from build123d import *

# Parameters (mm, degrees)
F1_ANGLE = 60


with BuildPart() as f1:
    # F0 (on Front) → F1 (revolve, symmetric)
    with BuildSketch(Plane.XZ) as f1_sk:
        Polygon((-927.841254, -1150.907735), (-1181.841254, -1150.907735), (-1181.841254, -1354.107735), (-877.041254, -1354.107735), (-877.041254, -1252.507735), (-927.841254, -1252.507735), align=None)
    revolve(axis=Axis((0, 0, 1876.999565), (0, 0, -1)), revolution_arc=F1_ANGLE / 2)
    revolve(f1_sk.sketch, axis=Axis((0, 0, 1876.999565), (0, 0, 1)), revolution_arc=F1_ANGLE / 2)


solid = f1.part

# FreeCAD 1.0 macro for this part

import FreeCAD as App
import Part
import Sketcher
from FreeCAD import Vector
Q = App.Units.Quantity


def add_polygon(sketch, points):
    """Adds a closed chain of lines whose ends are joined by coincident constraints."""
    first, n = sketch.GeometryCount, len(points)
    for a, b in zip(points, points[1:] + points[:1]):
        sketch.addGeometry(Part.LineSegment(App.Vector(*a, 0), App.Vector(*b, 0)), False)
    for i in range(n):
        sketch.addConstraint(Sketcher.Constraint("Coincident", first + i, 2, first + (i + 1) % n, 1))

doc = App.newDocument("Part")
body = doc.addObject("PartDesign::Body", "Body")

# Sketch on XZ plane
sketch1 = body.newObject("Sketcher::SketchObject", "Sketch")
sketch1.AttachmentSupport = (doc.getObject("XZ_Plane"), [""])
sketch1.MapMode = "FlatFace"
add_polygon(sketch1, [(-928, -1151), (-1182, -1151), (-1182, -1354), (-877, -1354), (-877, -1253), (-928, -1253)])  # lines 0-5
sketch1.addConstraint(Sketcher.Constraint("Horizontal", 0))
sketch1.addConstraint(Sketcher.Constraint("Vertical", 1))
sketch1.addConstraint(Sketcher.Constraint("Horizontal", 2))
sketch1.addConstraint(Sketcher.Constraint("Vertical", 3))
sketch1.addConstraint(Sketcher.Constraint("Horizontal", 4))
sketch1.addConstraint(Sketcher.Constraint("Vertical", 5))
sketch1.addConstraint(Sketcher.Constraint("Equal", 3, 5))
sketch1.addConstraint(Sketcher.Constraint("DistanceX", 0, 2, 0, 1, Q("10 in")))
sketch1.addConstraint(Sketcher.Constraint("DistanceX", 2, 1, 2, 2, Q("12 in")))
sketch1.addConstraint(Sketcher.Constraint("DistanceY", 1, 2, 1, 1, Q("8 in")))
sketch1.addConstraint(Sketcher.Constraint("DistanceX", 0, 2, -1, 1, Q("1181.841254 mm")))
sketch1.addConstraint(Sketcher.Constraint("DistanceY", 0, 2, -1, 1, Q("1150.907735 mm")))
revolution = body.newObject("PartDesign::Revolution", "Revolution")
revolution.Profile = sketch1
revolution.ReferenceAxis = (sketch1, ["V_Axis"])
revolution.Angle = 30
revolution.Reversed = True

# Sketch on XZ plane
sketch2 = body.newObject("Sketcher::SketchObject", "Sketch001")
sketch2.AttachmentSupport = (doc.getObject("XZ_Plane"), [""])
sketch2.MapMode = "FlatFace"
add_polygon(sketch2, [(-928, -1151), (-1182, -1151), (-1182, -1354), (-877, -1354), (-877, -1253), (-928, -1253)])  # lines 0-5
sketch2.addConstraint(Sketcher.Constraint("Horizontal", 0))
sketch2.addConstraint(Sketcher.Constraint("Vertical", 1))
sketch2.addConstraint(Sketcher.Constraint("Horizontal", 2))
sketch2.addConstraint(Sketcher.Constraint("Vertical", 3))
sketch2.addConstraint(Sketcher.Constraint("Horizontal", 4))
sketch2.addConstraint(Sketcher.Constraint("Vertical", 5))
sketch2.addConstraint(Sketcher.Constraint("Equal", 3, 5))
sketch2.addConstraint(Sketcher.Constraint("DistanceX", 0, 2, 0, 1, Q("10 in")))
sketch2.addConstraint(Sketcher.Constraint("DistanceX", 2, 1, 2, 2, Q("12 in")))
sketch2.addConstraint(Sketcher.Constraint("DistanceY", 1, 2, 1, 1, Q("8 in")))
sketch2.addConstraint(Sketcher.Constraint("DistanceX", 0, 2, -1, 1, Q("1181.841254 mm")))
sketch2.addConstraint(Sketcher.Constraint("DistanceY", 0, 2, -1, 1, Q("1150.907735 mm")))
revolution2 = body.newObject("PartDesign::Revolution", "Revolution001")
revolution2.Profile = sketch2
revolution2.ReferenceAxis = (sketch2, ["V_Axis"])
revolution2.Angle = 30

doc.recompute()
